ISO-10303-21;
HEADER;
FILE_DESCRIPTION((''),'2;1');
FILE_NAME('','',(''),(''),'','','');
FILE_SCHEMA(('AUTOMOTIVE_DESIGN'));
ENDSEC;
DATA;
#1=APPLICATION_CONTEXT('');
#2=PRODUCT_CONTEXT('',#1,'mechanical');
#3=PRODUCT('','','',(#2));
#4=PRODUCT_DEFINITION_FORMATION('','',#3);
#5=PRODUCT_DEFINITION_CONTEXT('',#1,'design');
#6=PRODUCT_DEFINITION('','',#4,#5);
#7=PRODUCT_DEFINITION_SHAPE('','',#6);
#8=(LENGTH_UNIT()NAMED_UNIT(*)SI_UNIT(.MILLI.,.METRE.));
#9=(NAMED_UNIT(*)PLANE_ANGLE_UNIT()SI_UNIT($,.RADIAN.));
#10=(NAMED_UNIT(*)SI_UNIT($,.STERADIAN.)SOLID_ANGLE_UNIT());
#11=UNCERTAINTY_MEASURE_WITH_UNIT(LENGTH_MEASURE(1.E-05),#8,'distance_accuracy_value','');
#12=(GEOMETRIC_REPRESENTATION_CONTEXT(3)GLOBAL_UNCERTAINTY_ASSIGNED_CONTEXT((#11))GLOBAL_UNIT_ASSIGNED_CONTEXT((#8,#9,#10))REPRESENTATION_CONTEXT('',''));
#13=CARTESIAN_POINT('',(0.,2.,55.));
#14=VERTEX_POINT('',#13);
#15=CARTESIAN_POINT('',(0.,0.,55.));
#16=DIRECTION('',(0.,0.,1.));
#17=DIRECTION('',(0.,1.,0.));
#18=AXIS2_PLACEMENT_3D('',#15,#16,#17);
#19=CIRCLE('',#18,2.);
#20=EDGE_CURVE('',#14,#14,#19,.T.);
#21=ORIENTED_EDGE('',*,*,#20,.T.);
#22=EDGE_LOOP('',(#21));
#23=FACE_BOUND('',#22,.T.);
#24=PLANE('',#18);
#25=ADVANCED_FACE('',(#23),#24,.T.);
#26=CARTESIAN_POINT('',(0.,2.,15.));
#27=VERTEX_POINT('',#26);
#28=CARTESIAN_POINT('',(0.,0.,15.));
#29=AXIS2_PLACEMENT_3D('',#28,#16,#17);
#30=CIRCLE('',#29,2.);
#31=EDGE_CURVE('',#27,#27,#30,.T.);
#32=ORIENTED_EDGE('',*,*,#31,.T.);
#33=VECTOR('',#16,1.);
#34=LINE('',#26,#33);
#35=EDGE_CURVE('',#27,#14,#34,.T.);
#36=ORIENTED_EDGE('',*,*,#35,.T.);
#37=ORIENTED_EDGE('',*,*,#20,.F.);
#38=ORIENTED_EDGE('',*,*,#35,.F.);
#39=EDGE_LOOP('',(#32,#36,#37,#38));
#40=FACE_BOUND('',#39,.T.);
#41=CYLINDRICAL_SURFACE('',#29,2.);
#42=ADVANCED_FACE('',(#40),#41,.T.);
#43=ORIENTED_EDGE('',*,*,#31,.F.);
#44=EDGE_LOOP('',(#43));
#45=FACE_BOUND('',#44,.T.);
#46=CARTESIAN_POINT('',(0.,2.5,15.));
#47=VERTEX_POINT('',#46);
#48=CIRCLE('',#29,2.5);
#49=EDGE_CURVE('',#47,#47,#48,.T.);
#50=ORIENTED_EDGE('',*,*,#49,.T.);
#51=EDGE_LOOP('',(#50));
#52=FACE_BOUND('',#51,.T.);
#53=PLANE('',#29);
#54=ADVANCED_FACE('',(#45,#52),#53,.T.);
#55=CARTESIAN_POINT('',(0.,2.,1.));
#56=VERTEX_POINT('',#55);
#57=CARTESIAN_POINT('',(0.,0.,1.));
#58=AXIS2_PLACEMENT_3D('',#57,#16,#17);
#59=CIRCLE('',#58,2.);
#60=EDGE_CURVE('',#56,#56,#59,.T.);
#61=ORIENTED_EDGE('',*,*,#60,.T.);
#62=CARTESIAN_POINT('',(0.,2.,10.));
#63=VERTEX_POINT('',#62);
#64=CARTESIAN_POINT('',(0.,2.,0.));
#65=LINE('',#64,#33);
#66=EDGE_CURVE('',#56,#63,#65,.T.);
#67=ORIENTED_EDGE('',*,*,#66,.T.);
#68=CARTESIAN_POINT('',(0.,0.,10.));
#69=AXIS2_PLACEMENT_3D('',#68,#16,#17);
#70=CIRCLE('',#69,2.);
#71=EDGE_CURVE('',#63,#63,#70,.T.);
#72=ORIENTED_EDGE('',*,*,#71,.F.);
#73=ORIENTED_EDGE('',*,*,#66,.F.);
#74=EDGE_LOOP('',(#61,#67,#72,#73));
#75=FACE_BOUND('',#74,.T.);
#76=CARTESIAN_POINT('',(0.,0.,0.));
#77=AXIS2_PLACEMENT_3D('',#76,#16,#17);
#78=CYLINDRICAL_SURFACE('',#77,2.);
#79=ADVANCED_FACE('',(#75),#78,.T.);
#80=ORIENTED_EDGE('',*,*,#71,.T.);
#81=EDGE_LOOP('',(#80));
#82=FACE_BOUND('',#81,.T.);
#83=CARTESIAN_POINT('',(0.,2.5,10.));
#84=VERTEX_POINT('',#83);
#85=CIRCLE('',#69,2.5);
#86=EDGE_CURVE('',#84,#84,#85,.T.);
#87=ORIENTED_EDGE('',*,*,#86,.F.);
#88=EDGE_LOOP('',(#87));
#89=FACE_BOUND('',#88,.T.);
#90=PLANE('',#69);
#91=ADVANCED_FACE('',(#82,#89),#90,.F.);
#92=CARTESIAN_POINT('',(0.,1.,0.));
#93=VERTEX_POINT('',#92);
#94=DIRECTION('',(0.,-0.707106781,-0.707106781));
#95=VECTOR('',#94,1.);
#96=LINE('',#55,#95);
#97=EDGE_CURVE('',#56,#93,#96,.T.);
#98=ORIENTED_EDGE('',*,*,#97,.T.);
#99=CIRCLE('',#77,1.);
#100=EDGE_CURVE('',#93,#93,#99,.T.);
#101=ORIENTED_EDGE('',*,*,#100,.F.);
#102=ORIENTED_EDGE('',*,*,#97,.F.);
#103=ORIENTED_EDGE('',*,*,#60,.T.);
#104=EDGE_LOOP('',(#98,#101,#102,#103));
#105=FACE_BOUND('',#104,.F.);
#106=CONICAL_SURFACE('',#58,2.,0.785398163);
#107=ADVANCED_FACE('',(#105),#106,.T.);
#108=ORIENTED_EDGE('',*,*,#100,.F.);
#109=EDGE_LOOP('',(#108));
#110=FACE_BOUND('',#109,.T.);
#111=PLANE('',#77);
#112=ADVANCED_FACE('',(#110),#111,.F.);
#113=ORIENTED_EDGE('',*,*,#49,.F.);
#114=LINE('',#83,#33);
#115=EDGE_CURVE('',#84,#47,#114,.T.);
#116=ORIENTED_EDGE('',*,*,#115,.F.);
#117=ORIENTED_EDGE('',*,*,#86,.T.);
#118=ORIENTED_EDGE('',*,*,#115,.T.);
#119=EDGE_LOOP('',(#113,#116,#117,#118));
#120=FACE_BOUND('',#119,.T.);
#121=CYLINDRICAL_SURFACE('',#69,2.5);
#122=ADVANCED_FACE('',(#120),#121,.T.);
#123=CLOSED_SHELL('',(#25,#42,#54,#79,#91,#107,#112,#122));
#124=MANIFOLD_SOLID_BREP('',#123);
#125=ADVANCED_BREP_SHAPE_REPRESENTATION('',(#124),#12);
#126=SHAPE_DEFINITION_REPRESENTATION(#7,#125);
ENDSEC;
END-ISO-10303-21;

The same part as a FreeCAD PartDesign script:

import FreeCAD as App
import Part
import Sketcher
Q = App.Units.Quantity


def edges_at(feature, points):
    """Names of the edges that pass closest to the given points."""
    edges = feature.Shape.Edges
    near = lambda p: min(range(len(edges)), key=lambda i: edges[i].distToShape(Part.Vertex(*p))[0])
    return sorted({f"Edge{near(p) + 1}" for p in points})


def add_polygon(sketch, points):
    """Adds a closed chain of lines whose ends are joined by coincident constraints."""
    first, n = sketch.GeometryCount, len(points)
    for a, b in zip(points, points[1:] + points[:1]):
        sketch.addGeometry(Part.LineSegment(App.Vector(*a, 0), App.Vector(*b, 0)), False)
    for i in range(n):
        sketch.addConstraint(Sketcher.Constraint("Coincident", first + i, 2, first + (i + 1) % n, 1))

doc = App.newDocument("Part")
body = doc.addObject("PartDesign::Body", "Body")

# Sketch on YZ plane
sketch1 = doc.addObject("Sketcher::SketchObject", "Sketch")
body.addObject(sketch1)
sketch1.AttachmentSupport = (doc.YZ_Plane, [""])
sketch1.MapMode = "FlatFace"
add_polygon(sketch1, [(0, 55), (0, 0), (2, 0), (2, 10), (2.5, 10), (2.5, 15), (2, 15), (2, 55)])  # lines 0-7
sketch1.addConstraint([
    Sketcher.Constraint("Vertical", 0),
    Sketcher.Constraint("Horizontal", 1),
    Sketcher.Constraint("Vertical", 2),
    Sketcher.Constraint("Horizontal", 3),
    Sketcher.Constraint("Vertical", 4),
    Sketcher.Constraint("Horizontal", 5),
    Sketcher.Constraint("Vertical", 6),
    Sketcher.Constraint("Horizontal", 7),
    Sketcher.Constraint("Coincident", 0, 2, -1, 1),
    Sketcher.Constraint("Vertical", 2, 2, 5, 2),
    Sketcher.Constraint("DistanceX", 1, 1, 1, 2, Q("2 mm")),
    Sketcher.Constraint("DistanceY", 2, 1, 2, 2, Q("10 mm")),
    Sketcher.Constraint("DistanceY", 4, 1, 4, 2, Q("5 mm")),
    Sketcher.Constraint("DistanceY", 6, 1, 6, 2, Q("40 mm")),
    Sketcher.Constraint("DistanceX", 3, 1, 3, 2, Q("0.5 mm")),
])
revolution = doc.addObject("PartDesign::Revolution", "Revolution")
body.addObject(revolution)
revolution.Profile = sketch1
revolution.ReferenceAxis = (sketch1, ["V_Axis"])
revolution.Angle = 360
doc.recompute()

chamfer = doc.addObject("PartDesign::Chamfer", "Chamfer")
body.addObject(chamfer)
chamfer.Base = (revolution, edges_at(revolution, [(0, -2, 0)]))
chamfer.Size = 1

doc.recompute()
